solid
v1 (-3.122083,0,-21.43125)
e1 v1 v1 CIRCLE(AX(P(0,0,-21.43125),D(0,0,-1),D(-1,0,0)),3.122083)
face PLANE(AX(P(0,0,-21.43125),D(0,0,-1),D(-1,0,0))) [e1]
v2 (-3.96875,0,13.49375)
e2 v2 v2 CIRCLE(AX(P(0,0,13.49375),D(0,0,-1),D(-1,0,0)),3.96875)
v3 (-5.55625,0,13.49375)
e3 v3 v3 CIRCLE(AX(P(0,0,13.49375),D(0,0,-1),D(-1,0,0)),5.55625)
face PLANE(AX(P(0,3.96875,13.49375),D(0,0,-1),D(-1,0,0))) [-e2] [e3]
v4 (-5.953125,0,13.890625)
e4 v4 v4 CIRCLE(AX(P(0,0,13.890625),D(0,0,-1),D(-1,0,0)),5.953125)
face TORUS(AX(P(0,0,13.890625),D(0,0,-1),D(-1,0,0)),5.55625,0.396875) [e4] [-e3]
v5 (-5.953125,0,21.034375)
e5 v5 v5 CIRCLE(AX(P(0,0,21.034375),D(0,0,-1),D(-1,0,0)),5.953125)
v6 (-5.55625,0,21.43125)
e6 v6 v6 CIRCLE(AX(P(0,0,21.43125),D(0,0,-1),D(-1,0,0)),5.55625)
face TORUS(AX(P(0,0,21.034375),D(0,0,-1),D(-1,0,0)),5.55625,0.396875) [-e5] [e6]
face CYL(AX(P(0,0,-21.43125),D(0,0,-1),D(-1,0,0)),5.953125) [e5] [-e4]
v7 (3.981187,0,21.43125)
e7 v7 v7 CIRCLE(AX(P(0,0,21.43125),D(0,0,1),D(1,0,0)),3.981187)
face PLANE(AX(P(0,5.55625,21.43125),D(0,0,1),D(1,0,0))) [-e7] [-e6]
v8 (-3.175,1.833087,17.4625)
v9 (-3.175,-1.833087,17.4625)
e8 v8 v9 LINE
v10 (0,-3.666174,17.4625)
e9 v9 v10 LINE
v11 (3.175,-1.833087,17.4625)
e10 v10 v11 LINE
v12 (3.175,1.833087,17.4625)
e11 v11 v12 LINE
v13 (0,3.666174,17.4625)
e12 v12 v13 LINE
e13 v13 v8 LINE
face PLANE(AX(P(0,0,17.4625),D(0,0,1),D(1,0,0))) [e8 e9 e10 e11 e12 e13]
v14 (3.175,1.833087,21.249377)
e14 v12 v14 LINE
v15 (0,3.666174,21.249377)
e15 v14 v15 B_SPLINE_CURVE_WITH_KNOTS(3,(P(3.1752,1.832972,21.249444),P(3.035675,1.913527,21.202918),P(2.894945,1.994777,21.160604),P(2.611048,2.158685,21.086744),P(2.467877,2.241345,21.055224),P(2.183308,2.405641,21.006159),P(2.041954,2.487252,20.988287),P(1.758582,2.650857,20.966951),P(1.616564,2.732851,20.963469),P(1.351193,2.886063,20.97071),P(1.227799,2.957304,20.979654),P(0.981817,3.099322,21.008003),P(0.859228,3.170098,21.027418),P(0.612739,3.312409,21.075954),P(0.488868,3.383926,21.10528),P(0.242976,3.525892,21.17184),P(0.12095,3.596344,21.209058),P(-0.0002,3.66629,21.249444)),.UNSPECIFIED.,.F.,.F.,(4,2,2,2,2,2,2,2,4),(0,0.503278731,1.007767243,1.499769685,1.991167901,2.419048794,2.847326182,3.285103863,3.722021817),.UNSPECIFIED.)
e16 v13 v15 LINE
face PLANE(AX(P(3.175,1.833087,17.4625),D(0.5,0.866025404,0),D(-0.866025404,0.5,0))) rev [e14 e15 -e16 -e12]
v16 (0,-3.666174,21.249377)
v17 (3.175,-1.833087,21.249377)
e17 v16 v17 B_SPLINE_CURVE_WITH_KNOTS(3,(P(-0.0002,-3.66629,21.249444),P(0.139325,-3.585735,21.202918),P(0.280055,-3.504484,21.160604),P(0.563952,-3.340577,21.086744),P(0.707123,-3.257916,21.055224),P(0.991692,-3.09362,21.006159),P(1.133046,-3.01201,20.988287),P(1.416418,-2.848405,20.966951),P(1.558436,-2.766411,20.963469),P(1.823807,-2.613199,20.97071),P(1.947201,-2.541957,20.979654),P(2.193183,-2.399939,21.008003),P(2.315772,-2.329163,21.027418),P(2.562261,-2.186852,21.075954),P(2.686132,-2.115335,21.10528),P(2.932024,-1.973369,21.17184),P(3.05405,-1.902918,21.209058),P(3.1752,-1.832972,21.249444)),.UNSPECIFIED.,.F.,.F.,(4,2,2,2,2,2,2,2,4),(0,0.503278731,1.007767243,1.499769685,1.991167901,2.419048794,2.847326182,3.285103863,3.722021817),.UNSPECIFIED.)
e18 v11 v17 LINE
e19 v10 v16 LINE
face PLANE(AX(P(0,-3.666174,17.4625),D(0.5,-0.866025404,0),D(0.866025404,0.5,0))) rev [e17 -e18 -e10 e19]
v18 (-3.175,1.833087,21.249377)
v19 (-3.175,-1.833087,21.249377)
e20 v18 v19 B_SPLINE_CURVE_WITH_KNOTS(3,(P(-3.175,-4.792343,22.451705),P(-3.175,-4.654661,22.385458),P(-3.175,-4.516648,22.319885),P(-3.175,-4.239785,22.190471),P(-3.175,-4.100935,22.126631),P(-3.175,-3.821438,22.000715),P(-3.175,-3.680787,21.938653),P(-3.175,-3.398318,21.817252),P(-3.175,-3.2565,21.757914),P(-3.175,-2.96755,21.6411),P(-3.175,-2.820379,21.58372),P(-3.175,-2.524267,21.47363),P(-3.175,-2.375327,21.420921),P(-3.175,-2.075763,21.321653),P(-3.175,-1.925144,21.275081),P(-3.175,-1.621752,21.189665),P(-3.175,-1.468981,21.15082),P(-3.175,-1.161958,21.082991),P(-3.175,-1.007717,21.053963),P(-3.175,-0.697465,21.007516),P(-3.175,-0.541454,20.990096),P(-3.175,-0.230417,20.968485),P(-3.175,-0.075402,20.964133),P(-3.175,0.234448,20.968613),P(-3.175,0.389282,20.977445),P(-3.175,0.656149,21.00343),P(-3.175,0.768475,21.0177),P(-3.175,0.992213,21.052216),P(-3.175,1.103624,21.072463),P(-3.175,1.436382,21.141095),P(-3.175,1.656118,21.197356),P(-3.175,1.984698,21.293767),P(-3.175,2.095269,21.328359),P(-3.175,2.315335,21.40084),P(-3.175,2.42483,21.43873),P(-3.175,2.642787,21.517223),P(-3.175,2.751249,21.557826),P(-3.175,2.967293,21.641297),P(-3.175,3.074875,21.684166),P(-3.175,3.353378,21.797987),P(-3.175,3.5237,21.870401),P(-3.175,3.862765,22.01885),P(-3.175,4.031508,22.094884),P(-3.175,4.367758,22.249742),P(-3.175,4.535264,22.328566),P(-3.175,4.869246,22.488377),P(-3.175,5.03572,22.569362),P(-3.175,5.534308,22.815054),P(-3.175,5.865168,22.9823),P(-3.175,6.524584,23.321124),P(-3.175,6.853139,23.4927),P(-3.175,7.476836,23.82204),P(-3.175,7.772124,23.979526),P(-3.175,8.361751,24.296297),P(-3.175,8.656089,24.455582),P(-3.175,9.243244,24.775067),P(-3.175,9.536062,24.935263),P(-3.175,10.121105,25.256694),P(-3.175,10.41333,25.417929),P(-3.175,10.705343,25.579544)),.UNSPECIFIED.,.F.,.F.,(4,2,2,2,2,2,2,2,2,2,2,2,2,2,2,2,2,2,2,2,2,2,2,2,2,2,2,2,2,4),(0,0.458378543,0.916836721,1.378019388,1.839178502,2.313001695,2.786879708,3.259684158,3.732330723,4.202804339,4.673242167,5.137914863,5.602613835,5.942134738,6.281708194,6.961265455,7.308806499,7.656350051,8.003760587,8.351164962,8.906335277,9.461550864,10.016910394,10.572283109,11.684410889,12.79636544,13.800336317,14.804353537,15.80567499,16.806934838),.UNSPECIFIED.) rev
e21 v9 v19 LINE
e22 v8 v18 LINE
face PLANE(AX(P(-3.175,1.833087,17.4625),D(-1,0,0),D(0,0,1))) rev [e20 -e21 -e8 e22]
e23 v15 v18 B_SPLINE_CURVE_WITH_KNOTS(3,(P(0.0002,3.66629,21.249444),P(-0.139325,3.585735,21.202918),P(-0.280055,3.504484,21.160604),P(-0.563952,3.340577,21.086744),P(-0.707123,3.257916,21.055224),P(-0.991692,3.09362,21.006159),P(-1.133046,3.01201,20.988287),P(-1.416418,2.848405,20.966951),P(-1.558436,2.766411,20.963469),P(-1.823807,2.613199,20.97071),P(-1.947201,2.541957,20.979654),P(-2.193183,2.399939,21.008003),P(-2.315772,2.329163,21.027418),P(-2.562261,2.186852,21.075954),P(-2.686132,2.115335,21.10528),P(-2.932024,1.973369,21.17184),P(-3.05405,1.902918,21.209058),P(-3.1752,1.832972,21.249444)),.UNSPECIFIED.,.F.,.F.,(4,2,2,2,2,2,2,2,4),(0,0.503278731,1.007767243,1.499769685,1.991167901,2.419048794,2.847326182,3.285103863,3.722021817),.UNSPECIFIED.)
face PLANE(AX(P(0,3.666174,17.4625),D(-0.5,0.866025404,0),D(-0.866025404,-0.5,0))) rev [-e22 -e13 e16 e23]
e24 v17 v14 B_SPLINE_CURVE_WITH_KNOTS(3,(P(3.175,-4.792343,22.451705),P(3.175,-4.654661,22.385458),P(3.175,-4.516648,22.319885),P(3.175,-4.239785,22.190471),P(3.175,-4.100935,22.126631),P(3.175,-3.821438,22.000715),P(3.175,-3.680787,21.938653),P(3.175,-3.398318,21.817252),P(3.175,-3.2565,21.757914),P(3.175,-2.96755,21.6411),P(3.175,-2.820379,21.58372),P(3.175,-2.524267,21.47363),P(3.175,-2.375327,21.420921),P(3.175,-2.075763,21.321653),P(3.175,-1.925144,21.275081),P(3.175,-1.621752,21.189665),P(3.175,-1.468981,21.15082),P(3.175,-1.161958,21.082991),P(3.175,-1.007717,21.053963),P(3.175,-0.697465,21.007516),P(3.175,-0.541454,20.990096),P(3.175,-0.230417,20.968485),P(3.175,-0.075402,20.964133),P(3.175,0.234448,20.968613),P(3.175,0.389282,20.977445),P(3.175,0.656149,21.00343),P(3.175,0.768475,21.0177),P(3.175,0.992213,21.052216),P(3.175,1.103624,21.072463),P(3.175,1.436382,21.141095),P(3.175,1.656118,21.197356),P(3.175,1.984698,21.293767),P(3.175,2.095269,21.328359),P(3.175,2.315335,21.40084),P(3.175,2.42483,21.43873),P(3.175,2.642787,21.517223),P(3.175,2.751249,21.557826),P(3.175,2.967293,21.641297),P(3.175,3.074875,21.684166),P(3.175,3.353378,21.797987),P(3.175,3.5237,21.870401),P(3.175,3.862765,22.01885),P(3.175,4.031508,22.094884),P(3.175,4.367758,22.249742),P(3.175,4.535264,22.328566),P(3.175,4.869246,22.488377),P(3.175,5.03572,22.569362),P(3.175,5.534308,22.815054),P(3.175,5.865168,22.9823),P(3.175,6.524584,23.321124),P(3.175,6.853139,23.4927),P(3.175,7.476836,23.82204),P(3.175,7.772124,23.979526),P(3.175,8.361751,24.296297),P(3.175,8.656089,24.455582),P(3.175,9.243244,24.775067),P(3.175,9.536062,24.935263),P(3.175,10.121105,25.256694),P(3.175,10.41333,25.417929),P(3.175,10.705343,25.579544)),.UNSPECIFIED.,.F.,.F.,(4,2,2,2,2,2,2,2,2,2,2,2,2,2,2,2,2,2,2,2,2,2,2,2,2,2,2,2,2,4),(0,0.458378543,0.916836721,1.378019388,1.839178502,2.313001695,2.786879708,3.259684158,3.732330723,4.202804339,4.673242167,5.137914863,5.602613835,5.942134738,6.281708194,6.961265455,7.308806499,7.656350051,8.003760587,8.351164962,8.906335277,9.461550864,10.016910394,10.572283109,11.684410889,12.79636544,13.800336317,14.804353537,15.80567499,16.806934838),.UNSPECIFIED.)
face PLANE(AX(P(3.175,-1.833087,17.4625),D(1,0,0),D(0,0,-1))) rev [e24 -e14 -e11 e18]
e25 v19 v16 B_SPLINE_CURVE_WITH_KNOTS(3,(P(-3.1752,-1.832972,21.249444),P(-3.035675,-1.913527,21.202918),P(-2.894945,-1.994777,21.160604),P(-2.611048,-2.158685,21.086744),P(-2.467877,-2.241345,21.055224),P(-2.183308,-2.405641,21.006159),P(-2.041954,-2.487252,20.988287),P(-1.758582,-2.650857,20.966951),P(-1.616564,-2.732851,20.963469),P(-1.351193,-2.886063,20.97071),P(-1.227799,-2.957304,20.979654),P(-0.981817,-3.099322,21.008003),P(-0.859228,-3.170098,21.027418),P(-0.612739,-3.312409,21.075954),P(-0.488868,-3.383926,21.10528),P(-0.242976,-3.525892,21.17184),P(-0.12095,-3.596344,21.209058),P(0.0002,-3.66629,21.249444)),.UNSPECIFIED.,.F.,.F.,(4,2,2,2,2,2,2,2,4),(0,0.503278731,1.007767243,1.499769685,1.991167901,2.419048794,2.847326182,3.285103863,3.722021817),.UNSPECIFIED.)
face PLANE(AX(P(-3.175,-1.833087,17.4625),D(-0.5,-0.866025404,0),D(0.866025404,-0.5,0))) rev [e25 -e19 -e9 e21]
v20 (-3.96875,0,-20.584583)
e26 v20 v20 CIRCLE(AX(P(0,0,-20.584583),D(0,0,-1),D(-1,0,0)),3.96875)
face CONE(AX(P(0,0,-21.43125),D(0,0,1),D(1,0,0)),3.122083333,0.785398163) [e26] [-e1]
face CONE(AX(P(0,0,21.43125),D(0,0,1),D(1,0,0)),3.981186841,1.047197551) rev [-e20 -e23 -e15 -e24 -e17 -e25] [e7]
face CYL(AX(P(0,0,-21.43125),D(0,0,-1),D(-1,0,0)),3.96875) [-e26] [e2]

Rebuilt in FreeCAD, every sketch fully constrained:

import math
import FreeCAD as App
import Part
import Sketcher
from FreeCAD import Vector
Q = App.Units.Quantity

doc = App.newDocument("Part")
body = doc.addObject("PartDesign::Body", "Body")

# Sketch on YZ plane
sketch1 = body.newObject("Sketcher::SketchObject", "Sketch")
sketch1.AttachmentSupport = (doc.getObject("YZ_Plane"), [""])
sketch1.MapMode = "FlatFace"
sketch1.addGeometry([
    Part.LineSegment(Vector(0, -21.43, 0), Vector(3.12, -21.43, 0)),  # 0
    Part.LineSegment(Vector(3.12, -21.43, 0), Vector(3.97, -20.58, 0)),  # 1
    Part.LineSegment(Vector(3.97, -20.58, 0), Vector(3.97, 13.49, 0)),  # 2
    Part.LineSegment(Vector(3.97, 13.49, 0), Vector(5.56, 13.49, 0)),  # 3
    Part.ArcOfCircle(Part.Circle(Vector(5.56, 13.89, 0), Vector(0, 0, 1), 0.4), math.radians(-90), math.radians(0)),  # 4
    Part.LineSegment(Vector(5.95, 13.89, 0), Vector(5.95, 21.03, 0)),  # 5
    Part.ArcOfCircle(Part.Circle(Vector(5.56, 21.03, 0), Vector(0, 0, 1), 0.4), math.radians(0), math.radians(90)),  # 6
    Part.LineSegment(Vector(5.56, 21.43, 0), Vector(0, 21.43, 0)),  # 7
    Part.LineSegment(Vector(0, 21.43, 0), Vector(0, -21.43, 0)),  # 8
], False)
sketch1.addConstraint([
    Sketcher.Constraint("Coincident", 0, 2, 1, 1),
    Sketcher.Constraint("Coincident", 1, 2, 2, 1),
    Sketcher.Constraint("Coincident", 2, 2, 3, 1),
    Sketcher.Constraint("Tangent", 3, 2, 4, 1),
    Sketcher.Constraint("Tangent", 4, 2, 5, 1),
    Sketcher.Constraint("Tangent", 5, 2, 6, 1),
    Sketcher.Constraint("Tangent", 6, 2, 7, 1),
    Sketcher.Constraint("Coincident", 7, 2, 8, 1),
    Sketcher.Constraint("Coincident", 8, 2, 0, 1),
    Sketcher.Constraint("Horizontal", 0),
    Sketcher.Constraint("Vertical", 2),
    Sketcher.Constraint("Horizontal", 3),
    Sketcher.Constraint("Vertical", 5),
    Sketcher.Constraint("Horizontal", 7),
    Sketcher.Constraint("Vertical", 8),
    Sketcher.Constraint("Equal", 4, 6),
    Sketcher.Constraint("Symmetric", 7, 2, 8, 2, -1, 1),
    Sketcher.Constraint("Angle", 1, Q("45 deg")),
    Sketcher.Constraint("Radius", 4, Q("0.015625 in")),
    Sketcher.Constraint("DistanceX", 3, 1, 3, 2, Q("0.0625 in")),
    Sketcher.Constraint("DistanceX", 7, 2, 7, 1, Q("0.21875 in")),
    Sketcher.Constraint("DistanceY", 5, 1, 5, 2, Q("0.28125 in")),
    Sketcher.Constraint("DistanceY", 8, 2, 8, 1, Q("1.6875 in")),
    Sketcher.Constraint("DistanceX", 0, 1, 0, 2, Q("3.122083 mm")),
])
revolution = body.newObject("PartDesign::Revolution", "Revolution")
revolution.Profile = sketch1
revolution.ReferenceAxis = (sketch1, ["V_Axis"])
revolution.Angle = 360

# Sketch on XY plane
sketch2 = body.newObject("Sketcher::SketchObject", "Sketch001")
sketch2.AttachmentSupport = (doc.getObject("XY_Plane"), [""])
sketch2.MapMode = "FlatFace"
sketch2.AttachmentOffset = App.Placement(Vector(0, 0, 0.84375 * 25.4), App.Rotation())
sketch2.addGeometry([
    Part.LineSegment(Vector(-3.2, 1.8, 0), Vector(-3.2, -1.8, 0)),  # 0
    Part.LineSegment(Vector(-3.2, -1.8, 0), Vector(0, -3.7, 0)),  # 1
    Part.LineSegment(Vector(0, -3.7, 0), Vector(3.2, -1.8, 0)),  # 2
    Part.LineSegment(Vector(3.2, -1.8, 0), Vector(3.2, 1.8, 0)),  # 3
    Part.LineSegment(Vector(3.2, 1.8, 0), Vector(0, 3.7, 0)),  # 4
    Part.LineSegment(Vector(0, 3.7, 0), Vector(-3.2, 1.8, 0)),  # 5
], False)
sketch2.addConstraint([
    Sketcher.Constraint("Coincident", 0, 2, 1, 1),
    Sketcher.Constraint("Coincident", 1, 2, 2, 1),
    Sketcher.Constraint("Coincident", 2, 2, 3, 1),
    Sketcher.Constraint("Coincident", 3, 2, 4, 1),
    Sketcher.Constraint("Coincident", 4, 2, 5, 1),
    Sketcher.Constraint("Coincident", 5, 2, 0, 1),
    Sketcher.Constraint("Vertical", 0),
    Sketcher.Constraint("Vertical", 3),
    Sketcher.Constraint("Symmetric", 0, 2, 3, 2, -1, 1),
    Sketcher.Constraint("Symmetric", 1, 2, 4, 2, -1, 1),
    Sketcher.Constraint("PointOnObject", 1, 2, -2),
    Sketcher.Constraint("Parallel", 2, 5),
    Sketcher.Constraint("Horizontal", 0, 2, 2, 2),
    Sketcher.Constraint("Angle", 1, Q("-30 deg")),
    Sketcher.Constraint("DistanceX", 0, 2, 2, 2, Q("0.25 in")),
    Sketcher.Constraint("DistanceY", 0, 2, 0, 1, Q("3.666174 mm")),
])
pocket1 = body.newObject("PartDesign::Pocket", "Pocket")
pocket1.Profile = sketch2
pocket1.Length = Q("0.15625 in")

# Sketch on YZ plane
sketch3 = body.newObject("Sketcher::SketchObject", "Sketch002")
sketch3.AttachmentSupport = (doc.getObject("YZ_Plane"), [""])
sketch3.MapMode = "FlatFace"
sketch3.addGeometry([
    Part.LineSegment(Vector(0, 21.4, 0), Vector(-4, 21.4, 0)),
    Part.LineSegment(Vector(-4, 21.4, 0), Vector(0, 19.1, 0)),
    Part.LineSegment(Vector(0, 19.1, 0), Vector(0, 21.4, 0)),
], False)
sketch3.addConstraint([
    Sketcher.Constraint("Coincident", 0, 2, 1, 1),
    Sketcher.Constraint("Coincident", 1, 2, 2, 1),
    Sketcher.Constraint("Coincident", 2, 2, 0, 1),
    Sketcher.Constraint("Horizontal", 0),
    Sketcher.Constraint("Vertical", 2),
    Sketcher.Constraint("PointOnObject", 1, 2, -2),
    Sketcher.Constraint("Angle", 1, Q("-30 deg")),
    Sketcher.Constraint("DistanceY", -1, 1, 0, 2, Q("0.84375 in")),
    Sketcher.Constraint("DistanceY", 2, 1, 2, 2, Q("2.298539 mm")),
])
groove = body.newObject("PartDesign::Groove", "Groove")
groove.Profile = sketch3
groove.ReferenceAxis = (sketch3, ["V_Axis"])
groove.Angle = 360

doc.recompute()
